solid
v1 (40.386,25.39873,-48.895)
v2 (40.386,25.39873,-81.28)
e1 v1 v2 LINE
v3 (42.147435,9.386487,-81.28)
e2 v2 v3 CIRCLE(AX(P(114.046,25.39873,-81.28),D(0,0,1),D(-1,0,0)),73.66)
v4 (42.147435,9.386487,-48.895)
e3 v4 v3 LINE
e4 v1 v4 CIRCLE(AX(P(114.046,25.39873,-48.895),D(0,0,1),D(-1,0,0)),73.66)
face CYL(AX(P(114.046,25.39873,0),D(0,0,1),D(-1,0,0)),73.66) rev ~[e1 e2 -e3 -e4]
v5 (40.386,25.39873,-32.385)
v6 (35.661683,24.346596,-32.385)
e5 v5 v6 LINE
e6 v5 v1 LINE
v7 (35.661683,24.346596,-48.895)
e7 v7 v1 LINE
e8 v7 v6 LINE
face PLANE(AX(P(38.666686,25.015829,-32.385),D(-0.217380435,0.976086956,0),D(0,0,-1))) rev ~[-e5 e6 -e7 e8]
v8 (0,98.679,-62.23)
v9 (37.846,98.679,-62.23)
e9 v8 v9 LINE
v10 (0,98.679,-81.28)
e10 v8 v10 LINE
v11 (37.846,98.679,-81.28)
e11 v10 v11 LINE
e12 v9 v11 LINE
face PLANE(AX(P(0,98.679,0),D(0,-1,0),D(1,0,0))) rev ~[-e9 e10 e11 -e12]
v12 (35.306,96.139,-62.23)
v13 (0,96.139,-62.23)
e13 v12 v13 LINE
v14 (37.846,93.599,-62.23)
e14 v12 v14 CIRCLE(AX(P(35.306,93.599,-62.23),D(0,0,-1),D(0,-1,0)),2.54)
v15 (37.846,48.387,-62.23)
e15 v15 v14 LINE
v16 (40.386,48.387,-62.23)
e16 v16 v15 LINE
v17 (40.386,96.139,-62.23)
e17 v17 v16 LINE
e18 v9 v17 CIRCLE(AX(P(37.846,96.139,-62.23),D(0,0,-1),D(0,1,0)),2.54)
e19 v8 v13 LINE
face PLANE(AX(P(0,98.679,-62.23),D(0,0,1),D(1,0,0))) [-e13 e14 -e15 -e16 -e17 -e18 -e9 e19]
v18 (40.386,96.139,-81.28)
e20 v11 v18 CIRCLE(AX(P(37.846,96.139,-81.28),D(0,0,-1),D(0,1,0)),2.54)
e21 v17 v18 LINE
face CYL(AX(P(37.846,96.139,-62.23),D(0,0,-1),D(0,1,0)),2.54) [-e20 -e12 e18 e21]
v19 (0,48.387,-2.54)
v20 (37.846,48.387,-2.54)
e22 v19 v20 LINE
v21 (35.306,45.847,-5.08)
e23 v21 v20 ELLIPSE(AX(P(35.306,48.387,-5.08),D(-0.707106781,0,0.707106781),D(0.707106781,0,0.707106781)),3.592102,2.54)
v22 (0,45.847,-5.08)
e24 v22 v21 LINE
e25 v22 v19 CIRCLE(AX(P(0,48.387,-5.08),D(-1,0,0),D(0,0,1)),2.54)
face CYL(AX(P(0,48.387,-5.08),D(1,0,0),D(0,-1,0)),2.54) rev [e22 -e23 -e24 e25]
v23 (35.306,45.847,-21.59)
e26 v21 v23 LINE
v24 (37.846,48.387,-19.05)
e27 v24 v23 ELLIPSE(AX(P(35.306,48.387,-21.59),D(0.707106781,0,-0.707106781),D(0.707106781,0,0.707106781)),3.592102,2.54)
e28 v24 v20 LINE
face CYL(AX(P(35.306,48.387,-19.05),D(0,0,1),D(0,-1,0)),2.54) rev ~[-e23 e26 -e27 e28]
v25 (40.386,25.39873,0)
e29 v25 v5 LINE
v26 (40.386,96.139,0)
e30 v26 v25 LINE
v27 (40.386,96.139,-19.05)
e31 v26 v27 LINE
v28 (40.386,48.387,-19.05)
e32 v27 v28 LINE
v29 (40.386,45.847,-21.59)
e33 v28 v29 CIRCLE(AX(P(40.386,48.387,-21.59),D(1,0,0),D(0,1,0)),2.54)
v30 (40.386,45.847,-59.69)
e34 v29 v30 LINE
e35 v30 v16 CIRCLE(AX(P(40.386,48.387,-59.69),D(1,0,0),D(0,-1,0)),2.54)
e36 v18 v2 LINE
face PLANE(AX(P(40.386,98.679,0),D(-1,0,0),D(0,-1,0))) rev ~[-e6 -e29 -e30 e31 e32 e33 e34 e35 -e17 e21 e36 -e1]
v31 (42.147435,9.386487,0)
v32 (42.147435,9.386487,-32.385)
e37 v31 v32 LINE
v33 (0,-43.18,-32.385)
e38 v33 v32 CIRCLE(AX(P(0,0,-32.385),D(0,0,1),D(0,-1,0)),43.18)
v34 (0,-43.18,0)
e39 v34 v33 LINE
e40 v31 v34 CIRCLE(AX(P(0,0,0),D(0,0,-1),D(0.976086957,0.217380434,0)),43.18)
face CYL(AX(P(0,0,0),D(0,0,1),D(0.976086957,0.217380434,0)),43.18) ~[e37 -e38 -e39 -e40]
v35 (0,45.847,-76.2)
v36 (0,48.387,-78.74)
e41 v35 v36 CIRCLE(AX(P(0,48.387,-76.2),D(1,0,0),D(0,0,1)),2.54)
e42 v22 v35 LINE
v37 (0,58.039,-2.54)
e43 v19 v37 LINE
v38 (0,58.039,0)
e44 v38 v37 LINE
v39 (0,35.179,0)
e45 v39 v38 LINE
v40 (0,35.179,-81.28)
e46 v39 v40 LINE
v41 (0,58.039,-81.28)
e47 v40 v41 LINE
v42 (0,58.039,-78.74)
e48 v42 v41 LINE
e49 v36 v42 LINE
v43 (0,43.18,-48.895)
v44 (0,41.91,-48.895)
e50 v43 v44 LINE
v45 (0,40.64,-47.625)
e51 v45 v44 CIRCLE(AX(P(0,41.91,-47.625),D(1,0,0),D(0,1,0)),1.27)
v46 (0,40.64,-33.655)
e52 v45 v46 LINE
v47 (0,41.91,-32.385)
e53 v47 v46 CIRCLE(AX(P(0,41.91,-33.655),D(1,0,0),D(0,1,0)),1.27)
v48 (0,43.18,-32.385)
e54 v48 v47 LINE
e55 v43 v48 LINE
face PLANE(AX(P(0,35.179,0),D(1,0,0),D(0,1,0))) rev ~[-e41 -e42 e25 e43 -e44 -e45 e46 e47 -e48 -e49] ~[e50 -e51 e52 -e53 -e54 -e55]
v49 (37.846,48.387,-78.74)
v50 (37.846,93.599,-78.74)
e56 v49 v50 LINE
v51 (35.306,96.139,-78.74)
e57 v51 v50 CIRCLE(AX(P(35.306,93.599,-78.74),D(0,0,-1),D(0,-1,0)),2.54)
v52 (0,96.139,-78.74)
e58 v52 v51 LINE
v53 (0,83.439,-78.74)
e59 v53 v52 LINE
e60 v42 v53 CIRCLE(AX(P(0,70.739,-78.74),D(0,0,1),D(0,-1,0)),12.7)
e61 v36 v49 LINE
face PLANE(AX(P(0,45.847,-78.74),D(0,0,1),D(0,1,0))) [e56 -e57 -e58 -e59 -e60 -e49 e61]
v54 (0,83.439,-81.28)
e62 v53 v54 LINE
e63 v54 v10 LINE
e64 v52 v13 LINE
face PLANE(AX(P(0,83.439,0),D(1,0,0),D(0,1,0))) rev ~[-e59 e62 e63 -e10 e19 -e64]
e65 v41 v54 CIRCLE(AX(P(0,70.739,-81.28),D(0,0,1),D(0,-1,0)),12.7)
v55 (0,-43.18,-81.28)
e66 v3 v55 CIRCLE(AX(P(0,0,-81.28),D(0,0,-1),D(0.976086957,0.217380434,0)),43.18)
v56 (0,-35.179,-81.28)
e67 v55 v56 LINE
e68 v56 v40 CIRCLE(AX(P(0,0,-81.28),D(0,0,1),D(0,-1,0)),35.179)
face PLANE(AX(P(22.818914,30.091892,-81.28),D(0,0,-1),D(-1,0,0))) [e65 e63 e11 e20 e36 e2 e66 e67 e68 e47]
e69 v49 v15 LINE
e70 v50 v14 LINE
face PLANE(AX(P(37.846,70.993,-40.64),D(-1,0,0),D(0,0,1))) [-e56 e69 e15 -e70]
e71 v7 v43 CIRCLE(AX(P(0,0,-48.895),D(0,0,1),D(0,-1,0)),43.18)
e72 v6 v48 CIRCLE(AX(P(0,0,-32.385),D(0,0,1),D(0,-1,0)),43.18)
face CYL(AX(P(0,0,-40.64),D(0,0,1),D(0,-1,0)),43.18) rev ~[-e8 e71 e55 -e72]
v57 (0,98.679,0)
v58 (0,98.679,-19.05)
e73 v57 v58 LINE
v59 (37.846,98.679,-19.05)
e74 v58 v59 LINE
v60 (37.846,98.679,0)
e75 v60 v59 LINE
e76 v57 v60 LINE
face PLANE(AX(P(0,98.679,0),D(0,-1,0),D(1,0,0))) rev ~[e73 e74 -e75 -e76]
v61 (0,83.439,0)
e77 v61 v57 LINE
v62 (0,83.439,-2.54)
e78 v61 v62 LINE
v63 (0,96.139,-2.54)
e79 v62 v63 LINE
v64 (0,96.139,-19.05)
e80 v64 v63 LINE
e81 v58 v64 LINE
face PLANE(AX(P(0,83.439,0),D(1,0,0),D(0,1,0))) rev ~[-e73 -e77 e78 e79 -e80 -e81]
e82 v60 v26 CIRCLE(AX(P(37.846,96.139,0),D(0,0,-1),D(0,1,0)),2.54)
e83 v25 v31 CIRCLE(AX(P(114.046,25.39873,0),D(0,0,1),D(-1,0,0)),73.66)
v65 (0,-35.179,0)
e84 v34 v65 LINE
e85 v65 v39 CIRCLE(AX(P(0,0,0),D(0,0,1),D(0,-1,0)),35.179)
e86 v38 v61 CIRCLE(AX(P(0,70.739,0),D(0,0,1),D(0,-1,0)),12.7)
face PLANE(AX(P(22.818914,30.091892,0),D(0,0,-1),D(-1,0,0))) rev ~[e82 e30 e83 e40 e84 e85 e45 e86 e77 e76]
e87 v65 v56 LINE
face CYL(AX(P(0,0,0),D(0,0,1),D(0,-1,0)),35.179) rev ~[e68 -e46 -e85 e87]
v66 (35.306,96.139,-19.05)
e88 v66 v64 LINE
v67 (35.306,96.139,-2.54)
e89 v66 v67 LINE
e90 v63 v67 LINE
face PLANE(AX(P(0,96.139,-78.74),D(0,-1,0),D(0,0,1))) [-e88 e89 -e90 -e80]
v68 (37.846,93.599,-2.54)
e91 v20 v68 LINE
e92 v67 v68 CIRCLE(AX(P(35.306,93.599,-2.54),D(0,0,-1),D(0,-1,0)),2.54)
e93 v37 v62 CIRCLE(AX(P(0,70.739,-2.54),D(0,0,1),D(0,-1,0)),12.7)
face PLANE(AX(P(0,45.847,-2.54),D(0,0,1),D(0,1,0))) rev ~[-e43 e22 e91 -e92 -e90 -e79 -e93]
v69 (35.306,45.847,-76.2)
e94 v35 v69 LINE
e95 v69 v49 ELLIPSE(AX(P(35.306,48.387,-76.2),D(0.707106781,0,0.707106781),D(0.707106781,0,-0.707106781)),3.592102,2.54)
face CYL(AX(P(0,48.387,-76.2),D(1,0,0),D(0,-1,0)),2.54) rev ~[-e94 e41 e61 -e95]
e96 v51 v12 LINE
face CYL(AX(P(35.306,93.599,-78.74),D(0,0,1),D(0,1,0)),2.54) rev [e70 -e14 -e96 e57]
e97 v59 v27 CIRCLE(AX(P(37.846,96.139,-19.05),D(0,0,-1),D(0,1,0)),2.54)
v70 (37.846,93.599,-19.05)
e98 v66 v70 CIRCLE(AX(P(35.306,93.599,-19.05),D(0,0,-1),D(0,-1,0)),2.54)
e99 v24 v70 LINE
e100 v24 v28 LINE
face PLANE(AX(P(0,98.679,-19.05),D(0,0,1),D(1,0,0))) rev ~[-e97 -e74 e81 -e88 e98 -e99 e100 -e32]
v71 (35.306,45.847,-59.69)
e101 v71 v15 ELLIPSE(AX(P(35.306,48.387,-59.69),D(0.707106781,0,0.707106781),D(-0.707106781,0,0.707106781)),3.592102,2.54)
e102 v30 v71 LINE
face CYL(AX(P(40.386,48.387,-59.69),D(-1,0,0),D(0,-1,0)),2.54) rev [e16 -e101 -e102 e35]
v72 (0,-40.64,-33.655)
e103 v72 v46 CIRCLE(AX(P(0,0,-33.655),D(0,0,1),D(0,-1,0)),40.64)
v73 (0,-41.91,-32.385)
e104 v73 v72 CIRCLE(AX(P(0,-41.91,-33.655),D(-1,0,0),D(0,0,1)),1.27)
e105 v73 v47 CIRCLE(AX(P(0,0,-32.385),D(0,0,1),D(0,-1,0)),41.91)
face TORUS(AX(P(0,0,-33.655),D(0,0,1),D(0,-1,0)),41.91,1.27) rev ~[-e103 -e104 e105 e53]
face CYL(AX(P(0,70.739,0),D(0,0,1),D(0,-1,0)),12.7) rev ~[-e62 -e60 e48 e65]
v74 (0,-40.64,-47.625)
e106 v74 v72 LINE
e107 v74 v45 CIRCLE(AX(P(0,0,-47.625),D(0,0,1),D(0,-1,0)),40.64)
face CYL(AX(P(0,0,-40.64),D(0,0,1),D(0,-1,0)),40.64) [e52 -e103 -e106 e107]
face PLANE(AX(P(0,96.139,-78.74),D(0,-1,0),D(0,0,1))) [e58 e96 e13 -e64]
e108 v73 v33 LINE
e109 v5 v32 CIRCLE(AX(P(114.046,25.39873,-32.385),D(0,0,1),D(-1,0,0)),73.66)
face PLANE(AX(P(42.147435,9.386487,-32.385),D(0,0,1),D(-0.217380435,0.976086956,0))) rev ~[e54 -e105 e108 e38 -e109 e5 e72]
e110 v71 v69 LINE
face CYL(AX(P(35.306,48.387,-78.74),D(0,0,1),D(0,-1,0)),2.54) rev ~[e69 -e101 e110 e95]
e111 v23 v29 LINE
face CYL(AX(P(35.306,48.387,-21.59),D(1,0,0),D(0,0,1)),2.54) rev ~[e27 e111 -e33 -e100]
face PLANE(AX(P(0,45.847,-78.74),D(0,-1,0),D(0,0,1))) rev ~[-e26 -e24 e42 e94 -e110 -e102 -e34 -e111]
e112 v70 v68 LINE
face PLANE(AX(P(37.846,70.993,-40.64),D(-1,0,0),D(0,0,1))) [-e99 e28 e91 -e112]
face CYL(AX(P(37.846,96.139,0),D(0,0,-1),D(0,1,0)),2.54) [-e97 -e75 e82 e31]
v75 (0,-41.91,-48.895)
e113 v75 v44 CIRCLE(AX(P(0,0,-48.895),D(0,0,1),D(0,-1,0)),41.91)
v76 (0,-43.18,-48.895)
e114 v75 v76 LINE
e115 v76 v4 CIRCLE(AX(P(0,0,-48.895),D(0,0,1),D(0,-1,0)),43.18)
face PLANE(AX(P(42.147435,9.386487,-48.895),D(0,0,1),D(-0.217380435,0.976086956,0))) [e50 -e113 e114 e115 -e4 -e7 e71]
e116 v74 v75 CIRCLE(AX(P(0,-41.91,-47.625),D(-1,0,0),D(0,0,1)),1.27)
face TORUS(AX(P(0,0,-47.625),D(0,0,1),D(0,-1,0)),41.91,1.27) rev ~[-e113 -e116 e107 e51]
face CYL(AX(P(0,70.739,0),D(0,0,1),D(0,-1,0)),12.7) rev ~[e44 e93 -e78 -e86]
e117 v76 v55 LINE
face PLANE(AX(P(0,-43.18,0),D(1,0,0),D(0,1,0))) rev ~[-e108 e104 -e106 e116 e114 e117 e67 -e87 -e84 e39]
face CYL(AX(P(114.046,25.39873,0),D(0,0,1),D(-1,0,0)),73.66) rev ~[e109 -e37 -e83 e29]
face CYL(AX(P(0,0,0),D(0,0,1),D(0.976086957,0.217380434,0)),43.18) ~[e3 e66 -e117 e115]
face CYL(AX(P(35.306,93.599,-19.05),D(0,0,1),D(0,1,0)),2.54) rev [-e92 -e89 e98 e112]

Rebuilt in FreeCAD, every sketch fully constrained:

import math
import FreeCAD as App
import Part
import Sketcher

V = App.Vector
Q = App.Units.Quantity


def edges_at(feature, points):
    """Names of the edges that pass closest to the given points."""
    edges = feature.Shape.Edges
    near = lambda p: min(range(len(edges)), key=lambda i: edges[i].distToShape(Part.Vertex(*p))[0])
    return sorted({f"Edge{near(p) + 1}" for p in points})


def add_polygon(sketch, points):
    """Adds a closed chain of lines whose ends are joined by coincident constraints."""
    first, n = sketch.GeometryCount, len(points)
    for a, b in zip(points, points[1:] + points[:1]):
        sketch.addGeometry(Part.LineSegment(App.Vector(*a, 0), App.Vector(*b, 0)), False)
    for i in range(n):
        sketch.addConstraint(Sketcher.Constraint("Coincident", first + i, 2, first + (i + 1) % n, 1))

doc = App.newDocument("Part")
body = doc.addObject("PartDesign::Body", "Body")

# Sketch on XY plane
sketch1 = body.newObject("Sketcher::SketchObject", "Sketch")
sketch1.AttachmentSupport = (doc.getObject("XY_Plane"), [""])
sketch1.MapMode = "FlatFace"
sketch1.addGeometry([
    Part.ArcOfCircle(Part.Circle(V(0, 71, 0), V(0, 0, 1), 13), math.radians(-90), math.radians(90)),  # 0
    Part.LineSegment(V(0, 58, 0), V(0, 35, 0)),  # 1
    Part.ArcOfCircle(Part.Circle(V(0, 0, 0), V(0, 0, 1), 35), math.radians(-90), math.radians(90)),  # 2
    Part.LineSegment(V(0, -35, 0), V(0, -43, 0)),  # 3
    Part.ArcOfCircle(Part.Circle(V(0, 0, 0), V(0, 0, 1), 43), math.radians(-90), math.radians(13)),  # 4
    Part.ArcOfCircle(Part.Circle(V(114, 25, 0), V(0, 0, 1), 74), math.radians(-180), math.radians(-167.44)),  # 5
    Part.LineSegment(V(40, 25, 0), V(40, 99, 0)),  # 6
    Part.LineSegment(V(40, 99, 0), V(0, 99, 0)),  # 7
    Part.LineSegment(V(0, 99, 0), V(0, 83, 0)),  # 8
], False)
sketch1.addConstraint([
    Sketcher.Constraint("Coincident", 0, 1, 1, 1),
    Sketcher.Constraint("Coincident", 1, 2, 2, 2),
    Sketcher.Constraint("Coincident", 2, 1, 3, 1),
    Sketcher.Constraint("Coincident", 3, 2, 4, 1),
    Sketcher.Constraint("Tangent", 4, 2, 5, 2),
    Sketcher.Constraint("Tangent", 5, 1, 6, 1),
    Sketcher.Constraint("Coincident", 6, 2, 7, 1),
    Sketcher.Constraint("Coincident", 7, 2, 8, 1),
    Sketcher.Constraint("Coincident", 8, 2, 0, 2),
    Sketcher.Constraint("Vertical", 1),
    Sketcher.Constraint("Vertical", 3),
    Sketcher.Constraint("Vertical", 6),
    Sketcher.Constraint("Horizontal", 7),
    Sketcher.Constraint("Vertical", 8),
    Sketcher.Constraint("Coincident", 2, 3, -1, 1),
    Sketcher.Constraint("Coincident", 4, 3, -1, 1),
    Sketcher.Constraint("PointOnObject", 0, 3, -2),
    Sketcher.Constraint("PointOnObject", 0, 1, -2),
    Sketcher.Constraint("PointOnObject", 2, 1, -2),
    Sketcher.Constraint("PointOnObject", 7, 2, -2),
    Sketcher.Constraint("Radius", 0, Q("0.5 in")),
    Sketcher.Constraint("Radius", 4, Q("1.7 in")),
    Sketcher.Constraint("Radius", 5, Q("2.9 in")),
    Sketcher.Constraint("DistanceY", 1, 2, 1, 1, Q("0.9 in")),
    Sketcher.Constraint("DistanceY", 8, 2, 8, 1, Q("0.6 in")),
    Sketcher.Constraint("Radius", 2, Q("1.385 in")),
    Sketcher.Constraint("DistanceX", 7, 2, 7, 1, Q("1.59 in")),
])
pad1 = body.newObject("PartDesign::Pad", "Pad")
pad1.Profile = sketch1
pad1.Length = Q("3.2 in")
pad1.Reversed = True

# Sketch on YZ plane
sketch2 = body.newObject("Sketcher::SketchObject", "Sketch001")
sketch2.AttachmentSupport = (doc.getObject("YZ_Plane"), [""])
sketch2.MapMode = "FlatFace"
add_polygon(sketch2, [(96, -79), (46, -79), (46, -3), (96, -3)])  # lines 0-3
sketch2.addConstraint([
    Sketcher.Constraint("Horizontal", 0),
    Sketcher.Constraint("Vertical", 1),
    Sketcher.Constraint("Horizontal", 2),
    Sketcher.Constraint("Vertical", 3),
    Sketcher.Constraint("DistanceY", 1, 1, 1, 2, Q("3 in")),
    Sketcher.Constraint("DistanceX", 0, 2, 0, 1, Q("1.98 in")),
    Sketcher.Constraint("DistanceY", 0, 2, -1, 1, Q("3.1 in")),
    Sketcher.Constraint("DistanceX", -1, 1, 0, 2, Q("1.805 in")),
])
pocket1 = body.newObject("PartDesign::Pocket", "Pocket")
pocket1.Profile = sketch2
pocket1.Length = Q("1.49 in")
pocket1.Reversed = True

# Sketch on XZ plane
sketch3 = body.newObject("Sketcher::SketchObject", "Sketch002")
sketch3.AttachmentSupport = (doc.getObject("XZ_Plane"), [""])
sketch3.MapMode = "FlatFace"
sketch3.AttachmentOffset = App.Placement(V(0, 0, -3.885 * 25.4), App.Rotation())
add_polygon(sketch3, [(0, -62), (0, -19), (40, -19), (40, -62)])  # lines 0-3
sketch3.addConstraint([
    Sketcher.Constraint("Vertical", 0),
    Sketcher.Constraint("Horizontal", 1),
    Sketcher.Constraint("Vertical", 2),
    Sketcher.Constraint("Horizontal", 3),
    Sketcher.Constraint("PointOnObject", 0, 2, -2),
    Sketcher.Constraint("DistanceY", 0, 1, 0, 2, Q("1.7 in")),
    Sketcher.Constraint("DistanceX", 1, 1, 1, 2, Q("1.59 in")),
    Sketcher.Constraint("DistanceY", 0, 2, -1, 1, Q("0.75 in")),
])
pocket2 = body.newObject("PartDesign::Pocket", "Pocket001")
pocket2.Profile = sketch3
pocket2.Length = Q("2.08 in")
pocket2.Reversed = True
doc.recompute()

fillet = body.newObject("PartDesign::Fillet", "Fillet")
fillet.Base = (pocket2, edges_at(pocket2, [
    (18.923, 45.847, -78.74),
    (18.923, 45.847, -2.54),
    (37.846, 45.847, -10.795),
    (37.846, 45.847, -70.485),
]))
fillet.Radius = Q("0.1 in")
doc.recompute()

fillet2 = body.newObject("PartDesign::Fillet", "Fillet001")
fillet2.Base = (fillet, edges_at(fillet, [(37.846, 96.139, -70.485), (37.846, 96.139, -10.795)]))
fillet2.Radius = Q("0.1 in")
doc.recompute()

fillet3 = body.newObject("PartDesign::Fillet", "Fillet002")
fillet3.Base = (fillet2, edges_at(fillet2, [(37.846, 45.847, -19.05), (37.846, 45.847, -62.23)]))
fillet3.Radius = Q("0.1 in")
doc.recompute()

fillet4 = body.newObject("PartDesign::Fillet", "Fillet003")
fillet4.Base = (fillet3, edges_at(fillet3, [(40.386, 98.679, -71.755), (40.386, 98.679, -9.525)]))
fillet4.Radius = Q("0.1 in")

# Sketch on YZ plane
sketch4 = body.newObject("Sketcher::SketchObject", "Sketch003")
sketch4.AttachmentSupport = (doc.getObject("YZ_Plane"), [""])
sketch4.MapMode = "FlatFace"
add_polygon(sketch4, [(-40.6, -48.9), (-43.2, -48.9), (-43.2, -32.4), (-40.6, -32.4)])  # lines 0-3
sketch4.addConstraint([
    Sketcher.Constraint("Horizontal", 0),
    Sketcher.Constraint("Vertical", 1),
    Sketcher.Constraint("Horizontal", 2),
    Sketcher.Constraint("Vertical", 3),
    Sketcher.Constraint("DistanceX", 0, 2, 0, 1, Q("0.1 in")),
    Sketcher.Constraint("DistanceY", 1, 1, 1, 2, Q("0.65 in")),
    Sketcher.Constraint("DistanceX", 0, 2, -1, 1, Q("1.7 in")),
    Sketcher.Constraint("DistanceY", 0, 2, -1, 1, Q("1.925 in")),
])
groove = body.newObject("PartDesign::Groove", "Groove")
groove.Profile = sketch4
groove.ReferenceAxis = (sketch4, ["V_Axis"])
groove.Angle = 360

# Sketch on an angled plane
sketch5 = body.newObject("Sketcher::SketchObject", "Sketch004")
sketch5.Placement = App.Placement(V(42.147435, 9.386487, 0), App.Rotation(V(0, 0, -1), V(-0.217380435, 0.976086956, 0), V(0.976086956, 0.217380435, 0), "ZXY"))
add_polygon(sketch5, [(32, 16), (32, 0), (49, 0), (49, 16)])  # lines 0-3
sketch5.addConstraint([
    Sketcher.Constraint("Vertical", 0),
    Sketcher.Constraint("Horizontal", 1),
    Sketcher.Constraint("Vertical", 2),
    Sketcher.Constraint("Horizontal", 3),
    Sketcher.Constraint("PointOnObject", 0, 2, -1),
    Sketcher.Constraint("DistanceX", 1, 1, 1, 2, Q("0.65 in")),
    Sketcher.Constraint("DistanceX", -1, 1, 0, 2, Q("1.275 in")),
    Sketcher.Constraint("DistanceY", 0, 2, 0, 1, 16.012243),
])
pocket3 = body.newObject("PartDesign::Pocket", "Pocket002")
pocket3.Profile = sketch5
pocket3.Type = "UpToFirst"

# Sketch on an angled plane
sketch6 = body.newObject("Sketcher::SketchObject", "Sketch005")
sketch6.Placement = App.Placement(V(42.147435, 9.386487, 0), App.Rotation(V(0, 0, -1), V(-0.217380435, 0.976086956, 0), V(0.976086956, 0.217380435, 0), "ZXY"))
add_polygon(sketch6, [(32, 16), (32, 0), (49, 0), (49, 16)])  # lines 0-3
sketch6.addConstraint([
    Sketcher.Constraint("Vertical", 0),
    Sketcher.Constraint("Horizontal", 1),
    Sketcher.Constraint("Vertical", 2),
    Sketcher.Constraint("Horizontal", 3),
    Sketcher.Constraint("PointOnObject", 0, 2, -1),
    Sketcher.Constraint("DistanceX", 1, 1, 1, 2, Q("0.65 in")),
    Sketcher.Constraint("DistanceX", -1, 1, 0, 2, Q("1.275 in")),
    Sketcher.Constraint("DistanceY", 0, 2, 0, 1, 16.012243),
])
pocket4 = body.newObject("PartDesign::Pocket", "Pocket003")
pocket4.Profile = sketch6
pocket4.Length = Q("0.1 in")
pocket4.Reversed = True
doc.recompute()

fillet5 = body.newObject("PartDesign::Fillet", "Fillet004")
fillet5.Base = (pocket4, edges_at(pocket4, [(40.64, 0, -48.895), (40.64, 0, -32.385)]))
fillet5.Radius = Q("0.05 in")

doc.recompute()
